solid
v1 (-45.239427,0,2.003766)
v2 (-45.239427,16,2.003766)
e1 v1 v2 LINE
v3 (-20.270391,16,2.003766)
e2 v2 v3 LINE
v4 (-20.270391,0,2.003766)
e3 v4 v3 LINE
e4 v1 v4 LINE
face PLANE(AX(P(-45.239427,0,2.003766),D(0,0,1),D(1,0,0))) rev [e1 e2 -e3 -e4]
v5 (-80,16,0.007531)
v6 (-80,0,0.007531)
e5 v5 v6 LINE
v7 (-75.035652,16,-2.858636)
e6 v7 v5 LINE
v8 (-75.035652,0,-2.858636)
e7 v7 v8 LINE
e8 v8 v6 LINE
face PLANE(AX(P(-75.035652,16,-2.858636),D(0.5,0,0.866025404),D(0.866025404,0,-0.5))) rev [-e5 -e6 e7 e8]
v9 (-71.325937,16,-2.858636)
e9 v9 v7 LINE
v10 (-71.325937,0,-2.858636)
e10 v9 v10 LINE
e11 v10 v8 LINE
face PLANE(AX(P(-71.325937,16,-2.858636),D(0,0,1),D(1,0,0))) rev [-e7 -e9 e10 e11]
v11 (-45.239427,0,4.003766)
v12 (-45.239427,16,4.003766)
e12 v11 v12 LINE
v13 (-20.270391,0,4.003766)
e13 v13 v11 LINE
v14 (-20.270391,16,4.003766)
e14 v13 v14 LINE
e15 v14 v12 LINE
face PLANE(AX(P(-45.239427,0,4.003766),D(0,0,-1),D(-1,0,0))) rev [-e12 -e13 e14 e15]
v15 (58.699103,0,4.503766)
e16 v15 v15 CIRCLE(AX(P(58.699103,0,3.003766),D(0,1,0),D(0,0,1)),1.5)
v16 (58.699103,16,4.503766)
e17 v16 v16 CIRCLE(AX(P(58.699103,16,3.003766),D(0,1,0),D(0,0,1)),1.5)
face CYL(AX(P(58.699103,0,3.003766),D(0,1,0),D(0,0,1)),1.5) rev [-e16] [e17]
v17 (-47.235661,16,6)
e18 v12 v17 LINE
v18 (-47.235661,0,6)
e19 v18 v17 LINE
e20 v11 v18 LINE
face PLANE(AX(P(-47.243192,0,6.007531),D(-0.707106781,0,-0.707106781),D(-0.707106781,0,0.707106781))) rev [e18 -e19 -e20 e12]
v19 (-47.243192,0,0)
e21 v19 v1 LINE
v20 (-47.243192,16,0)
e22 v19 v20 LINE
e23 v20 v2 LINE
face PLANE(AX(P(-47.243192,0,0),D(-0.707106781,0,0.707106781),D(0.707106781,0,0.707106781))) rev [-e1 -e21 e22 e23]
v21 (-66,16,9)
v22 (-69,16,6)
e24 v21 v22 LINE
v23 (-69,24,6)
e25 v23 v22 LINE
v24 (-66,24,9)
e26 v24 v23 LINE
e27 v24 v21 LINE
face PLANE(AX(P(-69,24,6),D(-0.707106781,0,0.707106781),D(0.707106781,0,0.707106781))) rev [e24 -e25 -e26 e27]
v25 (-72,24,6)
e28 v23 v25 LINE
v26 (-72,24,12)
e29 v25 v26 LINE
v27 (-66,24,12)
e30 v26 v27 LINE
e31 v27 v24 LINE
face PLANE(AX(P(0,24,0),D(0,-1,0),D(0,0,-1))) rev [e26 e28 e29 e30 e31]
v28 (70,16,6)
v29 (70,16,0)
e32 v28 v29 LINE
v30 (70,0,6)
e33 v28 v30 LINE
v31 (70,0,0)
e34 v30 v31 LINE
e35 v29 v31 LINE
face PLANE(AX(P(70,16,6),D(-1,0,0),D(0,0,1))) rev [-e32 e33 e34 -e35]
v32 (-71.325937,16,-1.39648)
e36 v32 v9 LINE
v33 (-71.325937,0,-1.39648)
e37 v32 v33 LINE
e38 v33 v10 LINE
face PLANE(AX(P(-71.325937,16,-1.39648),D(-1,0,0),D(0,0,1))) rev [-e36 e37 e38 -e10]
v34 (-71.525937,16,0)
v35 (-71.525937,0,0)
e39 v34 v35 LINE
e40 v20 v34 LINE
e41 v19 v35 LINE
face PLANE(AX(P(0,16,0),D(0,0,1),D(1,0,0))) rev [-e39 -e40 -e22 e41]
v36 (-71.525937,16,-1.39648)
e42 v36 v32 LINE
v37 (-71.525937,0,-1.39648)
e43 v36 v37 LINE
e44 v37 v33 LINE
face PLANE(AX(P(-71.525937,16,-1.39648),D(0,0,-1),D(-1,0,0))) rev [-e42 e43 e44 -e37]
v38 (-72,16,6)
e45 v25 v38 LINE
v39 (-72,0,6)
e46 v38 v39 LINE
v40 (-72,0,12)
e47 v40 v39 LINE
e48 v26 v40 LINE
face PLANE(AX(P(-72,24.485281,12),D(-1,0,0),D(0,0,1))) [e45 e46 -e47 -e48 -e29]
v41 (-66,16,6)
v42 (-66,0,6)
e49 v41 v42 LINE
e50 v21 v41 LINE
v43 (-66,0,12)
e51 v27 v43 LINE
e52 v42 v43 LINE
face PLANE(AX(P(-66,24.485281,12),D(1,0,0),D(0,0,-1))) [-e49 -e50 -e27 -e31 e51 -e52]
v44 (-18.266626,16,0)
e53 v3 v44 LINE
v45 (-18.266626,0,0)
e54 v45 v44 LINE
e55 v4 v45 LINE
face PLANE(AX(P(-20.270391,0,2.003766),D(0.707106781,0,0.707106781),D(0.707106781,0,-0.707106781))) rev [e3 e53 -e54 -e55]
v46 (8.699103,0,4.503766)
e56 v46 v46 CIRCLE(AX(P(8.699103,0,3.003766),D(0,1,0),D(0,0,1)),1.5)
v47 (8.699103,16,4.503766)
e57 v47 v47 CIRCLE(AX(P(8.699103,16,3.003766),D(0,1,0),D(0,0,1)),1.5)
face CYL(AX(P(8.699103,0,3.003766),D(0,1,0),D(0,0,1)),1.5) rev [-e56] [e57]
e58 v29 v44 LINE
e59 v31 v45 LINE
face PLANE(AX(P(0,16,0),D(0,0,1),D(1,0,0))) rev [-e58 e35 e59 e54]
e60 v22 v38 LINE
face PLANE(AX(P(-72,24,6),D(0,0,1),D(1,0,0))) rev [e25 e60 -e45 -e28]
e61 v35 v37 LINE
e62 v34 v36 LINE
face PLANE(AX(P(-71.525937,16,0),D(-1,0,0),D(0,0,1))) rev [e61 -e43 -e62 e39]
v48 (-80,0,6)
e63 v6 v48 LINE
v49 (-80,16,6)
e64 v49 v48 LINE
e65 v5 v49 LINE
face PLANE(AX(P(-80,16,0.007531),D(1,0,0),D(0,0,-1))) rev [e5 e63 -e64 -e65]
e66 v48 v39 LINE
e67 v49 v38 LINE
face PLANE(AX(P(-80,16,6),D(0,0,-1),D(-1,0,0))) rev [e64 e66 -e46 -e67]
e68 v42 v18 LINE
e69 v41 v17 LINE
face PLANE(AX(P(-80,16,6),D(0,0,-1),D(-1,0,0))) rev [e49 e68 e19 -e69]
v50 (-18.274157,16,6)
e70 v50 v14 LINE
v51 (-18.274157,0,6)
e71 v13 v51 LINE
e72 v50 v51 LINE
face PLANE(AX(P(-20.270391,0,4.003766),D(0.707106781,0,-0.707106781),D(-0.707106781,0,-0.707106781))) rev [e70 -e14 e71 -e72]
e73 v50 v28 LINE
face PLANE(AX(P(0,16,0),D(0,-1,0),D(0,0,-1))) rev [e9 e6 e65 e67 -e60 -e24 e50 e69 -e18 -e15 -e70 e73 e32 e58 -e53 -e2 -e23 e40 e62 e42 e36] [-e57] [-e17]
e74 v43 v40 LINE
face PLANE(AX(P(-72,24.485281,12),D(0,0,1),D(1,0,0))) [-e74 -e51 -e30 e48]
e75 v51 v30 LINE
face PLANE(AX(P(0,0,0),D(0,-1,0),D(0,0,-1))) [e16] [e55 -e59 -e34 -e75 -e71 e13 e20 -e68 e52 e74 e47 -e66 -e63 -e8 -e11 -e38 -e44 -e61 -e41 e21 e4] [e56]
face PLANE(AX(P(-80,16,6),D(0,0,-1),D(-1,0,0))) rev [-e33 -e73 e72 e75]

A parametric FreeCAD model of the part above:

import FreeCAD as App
import Part
import Sketcher

V = App.Vector
Q = App.Units.Quantity

doc = App.newDocument("Part")
params = doc.addObject("Spreadsheet::Sheet", "Params")
for row, (alias, value) in enumerate([
    ("sketch1_width", "150 mm"),
    ("sketch1_height", "6 mm"),
    ("sketch1_width2", "0.2 mm"),
    ("pad1_length", "16 mm"),
    ("sketch2_diameter", "3 mm"),
    ("sketch3_width", "6 mm"),
    ("pad2_length", "16 mm"),
    ("sketch4_width", "6 mm"),
    ("sketch4_width2", "3 mm"),
    ("pad3_length", "8 mm"),
], start=1):
    params.set(f"A{row}", alias)
    params.set(f"B{row}", "=" + value)
    params.setAlias(f"B{row}", alias)

body = doc.addObject("PartDesign::Body", "Body")

# Sketch on XZ plane
sketch1 = doc.addObject("Sketcher::SketchObject", "Sketch")
body.addObject(sketch1)
sketch1.AttachmentSupport = (doc.XZ_Plane, [""])
sketch1.MapMode = "FlatFace"
sketch1.addGeometry(Part.LineSegment(V(-71.53, 0, 0), V(-71.53, -1.4, 0)), False)
sketch1.addGeometry(Part.LineSegment(V(-71.53, -1.4, 0), V(-71.33, -1.4, 0)), False)
sketch1.addGeometry(Part.LineSegment(V(-71.33, -1.4, 0), V(-71.33, -2.86, 0)), False)
sketch1.addGeometry(Part.LineSegment(V(-71.33, -2.86, 0), V(-75.04, -2.86, 0)), False)
sketch1.addGeometry(Part.LineSegment(V(-75.04, -2.86, 0), V(-80, 0.01, 0)), False)
sketch1.addGeometry(Part.LineSegment(V(-80, 0.01, 0), V(-80, 6, 0)), False)
sketch1.addGeometry(Part.LineSegment(V(-80, 6, 0), V(70, 6, 0)), False)
sketch1.addGeometry(Part.LineSegment(V(70, 6, 0), V(70, 0, 0)), False)
sketch1.addGeometry(Part.LineSegment(V(70, 0, 0), V(-71.53, 0, 0)), False)
sketch1.addConstraint(Sketcher.Constraint("Coincident", 0, 2, 1, 1))
sketch1.addConstraint(Sketcher.Constraint("Coincident", 1, 2, 2, 1))
sketch1.addConstraint(Sketcher.Constraint("Coincident", 2, 2, 3, 1))
sketch1.addConstraint(Sketcher.Constraint("Coincident", 3, 2, 4, 1))
sketch1.addConstraint(Sketcher.Constraint("Coincident", 4, 2, 5, 1))
sketch1.addConstraint(Sketcher.Constraint("Coincident", 5, 2, 6, 1))
sketch1.addConstraint(Sketcher.Constraint("Coincident", 6, 2, 7, 1))
sketch1.addConstraint(Sketcher.Constraint("Coincident", 7, 2, 8, 1))
sketch1.addConstraint(Sketcher.Constraint("Coincident", 8, 2, 0, 1))
sketch1.addConstraint(Sketcher.Constraint("Vertical", 0))
sketch1.addConstraint(Sketcher.Constraint("Horizontal", 1))
sketch1.addConstraint(Sketcher.Constraint("Vertical", 2))
sketch1.addConstraint(Sketcher.Constraint("Horizontal", 3))
sketch1.addConstraint(Sketcher.Constraint("Vertical", 5))
sketch1.addConstraint(Sketcher.Constraint("Horizontal", 6))
sketch1.addConstraint(Sketcher.Constraint("Vertical", 7))
sketch1.addConstraint(Sketcher.Constraint("Horizontal", 8))
sketch1.addConstraint(Sketcher.Constraint("PointOnObject", 7, 2, -1))
sketch1.addConstraint(Sketcher.Constraint("DistanceX", 6, 1, 6, 2, Q("150 mm")))
sketch1.addConstraint(Sketcher.Constraint("DistanceY", 7, 2, 7, 1, Q("6 mm")))
sketch1.addConstraint(Sketcher.Constraint("Angle", 4, Q("150 deg")))
sketch1.addConstraint(Sketcher.Constraint("DistanceX", 1, 1, 1, 2, Q("0.2 mm")))
sketch1.addConstraint(Sketcher.Constraint("DistanceX", 4, 2, -1, 1, Q("80 mm")))
sketch1.addConstraint(Sketcher.Constraint("DistanceY", 0, 2, 0, 1, Q("1.39648 mm")))
sketch1.addConstraint(Sketcher.Constraint("DistanceY", 5, 1, 5, 2, Q("5.992469 mm")))
sketch1.addConstraint(Sketcher.Constraint("DistanceX", 3, 2, 3, 1, Q("3.709716 mm")))
sketch1.addConstraint(Sketcher.Constraint("DistanceX", 8, 2, 8, 1, Q("141.525937 mm")))
sketch1.setExpression("Constraints[18]", "Params.sketch1_width")
sketch1.setExpression("Constraints[19]", "Params.sketch1_height")
sketch1.setExpression("Constraints[21]", "Params.sketch1_width2")
pad1 = doc.addObject("PartDesign::Pad", "Pad")
body.addObject(pad1)
pad1.Profile = sketch1
pad1.setExpression("Length", "Params.pad1_length")
pad1.Reversed = True

# Sketch on XZ plane
sketch2 = doc.addObject("Sketcher::SketchObject", "Sketch001")
body.addObject(sketch2)
sketch2.AttachmentSupport = (doc.XZ_Plane, [""])
sketch2.MapMode = "FlatFace"
sketch2.AttachmentOffset = App.Placement(V(0, 0, -16), App.Rotation())
sketch2.addGeometry(Part.Circle(V(8.7, 3, 0), V(0, 0, 1), 1.5), False)
sketch2.addGeometry(Part.Circle(V(58.7, 3, 0), V(0, 0, 1), 1.5), False)
sketch2.addGeometry(Part.LineSegment(V(-47.2, 0, 0), V(-45.2, 2, 0)), False)
sketch2.addGeometry(Part.LineSegment(V(-45.2, 2, 0), V(-20.3, 2, 0)), False)
sketch2.addGeometry(Part.LineSegment(V(-20.3, 2, 0), V(-18.3, 0, 0)), False)
sketch2.addGeometry(Part.LineSegment(V(-18.3, 0, 0), V(-47.2, 0, 0)), False)
sketch2.addGeometry(Part.LineSegment(V(-47.2, 6, 0), V(-18.3, 6, 0)), False)
sketch2.addGeometry(Part.LineSegment(V(-18.3, 6, 0), V(-20.3, 4, 0)), False)
sketch2.addGeometry(Part.LineSegment(V(-20.3, 4, 0), V(-45.2, 4, 0)), False)
sketch2.addGeometry(Part.LineSegment(V(-45.2, 4, 0), V(-47.2, 6, 0)), False)
sketch2.addConstraint(Sketcher.Constraint("Coincident", 2, 2, 3, 1))
sketch2.addConstraint(Sketcher.Constraint("Coincident", 3, 2, 4, 1))
sketch2.addConstraint(Sketcher.Constraint("Coincident", 4, 2, 5, 1))
sketch2.addConstraint(Sketcher.Constraint("Coincident", 5, 2, 2, 1))
sketch2.addConstraint(Sketcher.Constraint("Coincident", 6, 2, 7, 1))
sketch2.addConstraint(Sketcher.Constraint("Coincident", 7, 2, 8, 1))
sketch2.addConstraint(Sketcher.Constraint("Coincident", 8, 2, 9, 1))
sketch2.addConstraint(Sketcher.Constraint("Coincident", 9, 2, 6, 1))
sketch2.addConstraint(Sketcher.Constraint("Horizontal", 3))
sketch2.addConstraint(Sketcher.Constraint("Horizontal", 5))
sketch2.addConstraint(Sketcher.Constraint("Horizontal", 6))
sketch2.addConstraint(Sketcher.Constraint("Horizontal", 8))
sketch2.addConstraint(Sketcher.Constraint("Equal", 0, 1))
sketch2.addConstraint(Sketcher.Constraint("PointOnObject", 4, 2, -1))
sketch2.addConstraint(Sketcher.Constraint("Perpendicular", 2, 4))
sketch2.addConstraint(Sketcher.Constraint("Perpendicular", 4, 7))
sketch2.addConstraint(Sketcher.Constraint("Perpendicular", 7, 9))
sketch2.addConstraint(Sketcher.Constraint("Horizontal", 0, 3, 1, 3))
sketch2.addConstraint(Sketcher.Constraint("Vertical", 4, 2, 6, 2))
sketch2.addConstraint(Sketcher.Constraint("Vertical", 3, 2, 7, 2))
sketch2.addConstraint(Sketcher.Constraint("Vertical", 2, 2, 8, 2))
sketch2.addConstraint(Sketcher.Constraint("Vertical", 5, 2, 9, 2))
sketch2.addConstraint(Sketcher.Constraint("Diameter", 0, Q("3 mm")))
sketch2.addConstraint(Sketcher.Constraint("DistanceX", 0, 3, 1, 3, Q("50 mm")))
sketch2.addConstraint(Sketcher.Constraint("DistanceY", 2, 2, 0, 3, Q("1 mm")))
sketch2.addConstraint(Sketcher.Constraint("DistanceY", 3, 2, 7, 2, Q("2 mm")))
sketch2.addConstraint(Sketcher.Constraint("DistanceX", 2, 2, 4, 2, Q("26.972801 mm")))
sketch2.addConstraint(Sketcher.Constraint("DistanceX", 3, 1, 3, 2, Q("24.969036 mm")))
sketch2.addConstraint(Sketcher.Constraint("DistanceX", 3, 2, -1, 1, Q("20.270391 mm")))
sketch2.addConstraint(Sketcher.Constraint("DistanceX", 2, 2, 0, 3, Q("53.93853 mm")))
sketch2.setExpression("Constraints[22]", "Params.sketch2_diameter")
pocket1 = doc.addObject("PartDesign::Pocket", "Pocket")
body.addObject(pocket1)
pocket1.Profile = sketch2
pocket1.Type = "ThroughAll"
pocket1.Reversed = True

# Sketch on XZ plane
sketch3 = doc.addObject("Sketcher::SketchObject", "Sketch002")
body.addObject(sketch3)
sketch3.AttachmentSupport = (doc.XZ_Plane, [""])
sketch3.MapMode = "FlatFace"
sketch3.addGeometry(Part.LineSegment(V(-72, 12, 0), V(-72, 6, 0)), False)
sketch3.addGeometry(Part.LineSegment(V(-72, 6, 0), V(-66, 6, 0)), False)
sketch3.addGeometry(Part.LineSegment(V(-66, 6, 0), V(-66, 12, 0)), False)
sketch3.addGeometry(Part.LineSegment(V(-66, 12, 0), V(-72, 12, 0)), False)
sketch3.addConstraint(Sketcher.Constraint("Coincident", 0, 2, 1, 1))
sketch3.addConstraint(Sketcher.Constraint("Coincident", 1, 2, 2, 1))
sketch3.addConstraint(Sketcher.Constraint("Coincident", 2, 2, 3, 1))
sketch3.addConstraint(Sketcher.Constraint("Coincident", 3, 2, 0, 1))
sketch3.addConstraint(Sketcher.Constraint("Vertical", 0))
sketch3.addConstraint(Sketcher.Constraint("Horizontal", 1))
sketch3.addConstraint(Sketcher.Constraint("Vertical", 2))
sketch3.addConstraint(Sketcher.Constraint("Horizontal", 3))
sketch3.addConstraint(Sketcher.Constraint("Equal", 3, 0))
sketch3.addConstraint(Sketcher.Constraint("DistanceX", 1, 1, 1, 2, Q("6 mm")))
sketch3.addConstraint(Sketcher.Constraint("DistanceX", 0, 2, -1, 1, Q("72 mm")))
sketch3.addConstraint(Sketcher.Constraint("DistanceY", -1, 1, 0, 2, Q("6 mm")))
sketch3.setExpression("Constraints[9]", "Params.sketch3_width")
pad2 = doc.addObject("PartDesign::Pad", "Pad001")
body.addObject(pad2)
pad2.Profile = sketch3
pad2.setExpression("Length", "Params.pad2_length")
pad2.Reversed = True

# Sketch on XZ plane
sketch4 = doc.addObject("Sketcher::SketchObject", "Sketch003")
body.addObject(sketch4)
sketch4.AttachmentSupport = (doc.XZ_Plane, [""])
sketch4.MapMode = "FlatFace"
sketch4.AttachmentOffset = App.Placement(V(0, 0, -16), App.Rotation())
sketch4.addGeometry(Part.LineSegment(V(-72, 6, 0), V(-72, 12, 0)), False)
sketch4.addGeometry(Part.LineSegment(V(-72, 12, 0), V(-66, 12, 0)), False)
sketch4.addGeometry(Part.LineSegment(V(-66, 12, 0), V(-66, 9, 0)), False)
sketch4.addGeometry(Part.LineSegment(V(-66, 9, 0), V(-69, 6, 0)), False)
sketch4.addGeometry(Part.LineSegment(V(-69, 6, 0), V(-72, 6, 0)), False)
sketch4.addConstraint(Sketcher.Constraint("Coincident", 0, 2, 1, 1))
sketch4.addConstraint(Sketcher.Constraint("Coincident", 1, 2, 2, 1))
sketch4.addConstraint(Sketcher.Constraint("Coincident", 2, 2, 3, 1))
sketch4.addConstraint(Sketcher.Constraint("Coincident", 3, 2, 4, 1))
sketch4.addConstraint(Sketcher.Constraint("Coincident", 4, 2, 0, 1))
sketch4.addConstraint(Sketcher.Constraint("Vertical", 0))
sketch4.addConstraint(Sketcher.Constraint("Horizontal", 1))
sketch4.addConstraint(Sketcher.Constraint("Vertical", 2))
sketch4.addConstraint(Sketcher.Constraint("Horizontal", 4))
sketch4.addConstraint(Sketcher.Constraint("Equal", 1, 0))
sketch4.addConstraint(Sketcher.Constraint("Equal", 4, 2))
sketch4.addConstraint(Sketcher.Constraint("DistanceX", 1, 1, 1, 2, Q("6 mm")))
sketch4.addConstraint(Sketcher.Constraint("DistanceX", 4, 2, 4, 1, Q("3 mm")))
sketch4.addConstraint(Sketcher.Constraint("DistanceX", 0, 2, -1, 1, Q("72 mm")))
sketch4.addConstraint(Sketcher.Constraint("DistanceY", -1, 1, 0, 2, Q("12 mm")))
sketch4.setExpression("Constraints[11]", "Params.sketch4_width")
sketch4.setExpression("Constraints[12]", "Params.sketch4_width2")
pad3 = doc.addObject("PartDesign::Pad", "Pad002")
body.addObject(pad3)
pad3.Profile = sketch4
pad3.setExpression("Length", "Params.pad3_length")
pad3.Reversed = True

doc.recompute()
